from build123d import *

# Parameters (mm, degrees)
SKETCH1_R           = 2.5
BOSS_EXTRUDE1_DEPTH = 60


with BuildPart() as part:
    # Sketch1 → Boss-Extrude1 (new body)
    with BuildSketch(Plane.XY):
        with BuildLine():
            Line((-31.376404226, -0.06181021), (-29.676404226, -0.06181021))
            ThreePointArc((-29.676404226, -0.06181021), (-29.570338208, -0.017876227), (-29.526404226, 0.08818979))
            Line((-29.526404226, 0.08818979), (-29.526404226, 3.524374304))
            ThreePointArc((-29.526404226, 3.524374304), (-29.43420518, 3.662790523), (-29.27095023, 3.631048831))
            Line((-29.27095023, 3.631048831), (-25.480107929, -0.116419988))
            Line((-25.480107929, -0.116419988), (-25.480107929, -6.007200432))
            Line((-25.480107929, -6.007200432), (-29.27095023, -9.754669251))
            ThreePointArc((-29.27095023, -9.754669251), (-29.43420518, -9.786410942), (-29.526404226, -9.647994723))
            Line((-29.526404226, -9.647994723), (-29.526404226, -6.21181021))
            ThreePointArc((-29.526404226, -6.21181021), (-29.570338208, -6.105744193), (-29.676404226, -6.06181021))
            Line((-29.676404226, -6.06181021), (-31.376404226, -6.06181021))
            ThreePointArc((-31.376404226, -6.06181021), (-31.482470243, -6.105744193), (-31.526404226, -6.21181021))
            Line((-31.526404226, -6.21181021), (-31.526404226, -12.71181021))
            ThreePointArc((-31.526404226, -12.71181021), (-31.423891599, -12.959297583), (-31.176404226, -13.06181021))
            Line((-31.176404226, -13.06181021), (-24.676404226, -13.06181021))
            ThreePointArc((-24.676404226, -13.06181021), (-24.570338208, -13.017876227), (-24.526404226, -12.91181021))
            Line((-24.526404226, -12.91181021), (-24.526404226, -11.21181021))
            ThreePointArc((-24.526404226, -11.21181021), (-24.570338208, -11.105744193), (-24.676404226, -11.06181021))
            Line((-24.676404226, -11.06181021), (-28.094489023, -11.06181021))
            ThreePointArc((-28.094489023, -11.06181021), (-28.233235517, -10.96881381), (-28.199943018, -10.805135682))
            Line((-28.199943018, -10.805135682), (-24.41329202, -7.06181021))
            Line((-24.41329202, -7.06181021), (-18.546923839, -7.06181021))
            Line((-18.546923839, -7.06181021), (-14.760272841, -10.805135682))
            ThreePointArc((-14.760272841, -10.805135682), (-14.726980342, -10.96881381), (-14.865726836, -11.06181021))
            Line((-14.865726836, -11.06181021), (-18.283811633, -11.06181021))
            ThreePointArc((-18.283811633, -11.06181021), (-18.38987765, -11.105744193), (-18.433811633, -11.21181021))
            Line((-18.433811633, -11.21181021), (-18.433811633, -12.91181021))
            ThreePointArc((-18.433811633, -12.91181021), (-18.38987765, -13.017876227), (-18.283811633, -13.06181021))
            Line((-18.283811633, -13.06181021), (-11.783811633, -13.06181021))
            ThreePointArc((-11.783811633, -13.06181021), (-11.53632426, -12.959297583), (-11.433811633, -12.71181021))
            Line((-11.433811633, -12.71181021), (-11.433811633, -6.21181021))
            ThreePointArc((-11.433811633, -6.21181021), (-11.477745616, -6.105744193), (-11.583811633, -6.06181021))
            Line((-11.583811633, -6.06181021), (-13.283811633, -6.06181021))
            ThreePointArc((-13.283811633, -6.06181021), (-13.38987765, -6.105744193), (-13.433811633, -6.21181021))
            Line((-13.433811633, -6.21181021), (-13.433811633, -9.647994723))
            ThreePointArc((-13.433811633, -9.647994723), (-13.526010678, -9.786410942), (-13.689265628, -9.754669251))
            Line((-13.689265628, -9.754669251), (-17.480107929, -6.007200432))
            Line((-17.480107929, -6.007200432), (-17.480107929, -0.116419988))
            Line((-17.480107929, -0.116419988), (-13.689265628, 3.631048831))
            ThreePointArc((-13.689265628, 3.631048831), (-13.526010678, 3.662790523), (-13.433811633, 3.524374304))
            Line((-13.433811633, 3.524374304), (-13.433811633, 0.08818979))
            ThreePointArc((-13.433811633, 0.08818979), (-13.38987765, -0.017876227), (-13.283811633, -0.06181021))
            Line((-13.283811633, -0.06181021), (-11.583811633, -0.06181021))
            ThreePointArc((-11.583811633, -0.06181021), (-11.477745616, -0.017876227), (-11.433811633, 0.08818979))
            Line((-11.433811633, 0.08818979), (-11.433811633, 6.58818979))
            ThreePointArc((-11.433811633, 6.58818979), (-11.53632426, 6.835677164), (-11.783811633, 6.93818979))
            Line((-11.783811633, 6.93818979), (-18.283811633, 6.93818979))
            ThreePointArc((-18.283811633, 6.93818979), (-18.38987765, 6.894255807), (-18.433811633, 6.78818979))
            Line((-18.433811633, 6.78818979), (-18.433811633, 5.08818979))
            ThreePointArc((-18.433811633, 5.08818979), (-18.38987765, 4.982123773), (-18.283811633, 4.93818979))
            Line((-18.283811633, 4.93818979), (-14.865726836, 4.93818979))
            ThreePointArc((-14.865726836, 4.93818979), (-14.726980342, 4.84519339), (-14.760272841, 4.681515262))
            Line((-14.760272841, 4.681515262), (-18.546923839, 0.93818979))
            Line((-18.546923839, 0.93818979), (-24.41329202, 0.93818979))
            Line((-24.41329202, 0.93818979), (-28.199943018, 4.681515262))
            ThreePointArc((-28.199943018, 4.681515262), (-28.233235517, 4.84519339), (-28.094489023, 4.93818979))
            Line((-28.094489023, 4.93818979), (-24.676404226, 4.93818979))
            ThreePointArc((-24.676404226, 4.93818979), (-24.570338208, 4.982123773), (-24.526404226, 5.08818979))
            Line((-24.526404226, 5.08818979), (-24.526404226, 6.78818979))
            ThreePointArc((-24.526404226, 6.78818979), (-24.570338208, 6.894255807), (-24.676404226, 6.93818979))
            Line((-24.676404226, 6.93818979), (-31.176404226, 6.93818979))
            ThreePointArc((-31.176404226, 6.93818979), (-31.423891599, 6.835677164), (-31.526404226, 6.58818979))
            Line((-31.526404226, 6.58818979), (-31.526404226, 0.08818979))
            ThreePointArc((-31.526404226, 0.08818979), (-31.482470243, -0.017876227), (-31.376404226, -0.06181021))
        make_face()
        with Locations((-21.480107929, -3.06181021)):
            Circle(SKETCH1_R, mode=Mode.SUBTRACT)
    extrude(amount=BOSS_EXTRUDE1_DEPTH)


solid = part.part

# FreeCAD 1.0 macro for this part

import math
import FreeCAD as App
import Part
import Sketcher

V = App.Vector
Q = App.Units.Quantity

doc = App.newDocument("Part")
body = doc.addObject("PartDesign::Body", "Body")

sketch1 = body.newObject("Sketcher::SketchObject", "Sketch")
sketch1.AttachmentSupport = (doc.getObject("XY_Plane"), [""])
sketch1.MapMode = "FlatFace"
sketch1.addGeometry(Part.LineSegment(V(-31.38, -0.06, 0), V(-29.68, -0.06, 0)), False)
sketch1.addGeometry(Part.ArcOfCircle(Part.Circle(V(-29.68, 0.09, 0), V(0, 0, 1), 0.15), math.radians(-90), math.radians(0)), False)
sketch1.addGeometry(Part.LineSegment(V(-29.53, 0.09, 0), V(-29.53, 3.52, 0)), False)
sketch1.addGeometry(Part.ArcOfCircle(Part.Circle(V(-29.38, 3.52, 0), V(0, 0, 1), 0.15), math.radians(45), math.radians(180)), False)
sketch1.addGeometry(Part.LineSegment(V(-29.27, 3.63, 0), V(-25.48, -0.12, 0)), False)
sketch1.addGeometry(Part.LineSegment(V(-25.48, -0.12, 0), V(-25.48, -6.01, 0)), False)
sketch1.addGeometry(Part.LineSegment(V(-25.48, -6.01, 0), V(-29.27, -9.75, 0)), False)
sketch1.addGeometry(Part.ArcOfCircle(Part.Circle(V(-29.38, -9.65, 0), V(0, 0, 1), 0.15), math.radians(-180), math.radians(-45)), False)
sketch1.addGeometry(Part.LineSegment(V(-29.53, -9.65, 0), V(-29.53, -6.21, 0)), False)
sketch1.addGeometry(Part.ArcOfCircle(Part.Circle(V(-29.68, -6.21, 0), V(0, 0, 1), 0.15), math.radians(0), math.radians(90)), False)
sketch1.addGeometry(Part.LineSegment(V(-29.68, -6.06, 0), V(-31.38, -6.06, 0)), False)
sketch1.addGeometry(Part.ArcOfCircle(Part.Circle(V(-31.38, -6.21, 0), V(0, 0, 1), 0.15), math.radians(90), math.radians(180)), False)
sketch1.addGeometry(Part.LineSegment(V(-31.53, -6.21, 0), V(-31.53, -12.71, 0)), False)
sketch1.addGeometry(Part.ArcOfCircle(Part.Circle(V(-31.18, -12.71, 0), V(0, 0, 1), 0.35), math.radians(-180), math.radians(-90)), False)
sketch1.addGeometry(Part.LineSegment(V(-31.18, -13.06, 0), V(-24.68, -13.06, 0)), False)
sketch1.addGeometry(Part.ArcOfCircle(Part.Circle(V(-24.68, -12.91, 0), V(0, 0, 1), 0.15), math.radians(-90), math.radians(0)), False)
sketch1.addGeometry(Part.LineSegment(V(-24.53, -12.91, 0), V(-24.53, -11.21, 0)), False)
sketch1.addGeometry(Part.ArcOfCircle(Part.Circle(V(-24.68, -11.21, 0), V(0, 0, 1), 0.15), math.radians(0), math.radians(90)), False)
sketch1.addGeometry(Part.LineSegment(V(-24.68, -11.06, 0), V(-28.09, -11.06, 0)), False)
sketch1.addGeometry(Part.ArcOfCircle(Part.Circle(V(-28.09, -10.91, 0), V(0, 0, 1), 0.15), math.radians(135), math.radians(270)), False)
sketch1.addGeometry(Part.LineSegment(V(-28.2, -10.81, 0), V(-24.41, -7.06, 0)), False)
sketch1.addGeometry(Part.LineSegment(V(-24.41, -7.06, 0), V(-18.55, -7.06, 0)), False)
sketch1.addGeometry(Part.LineSegment(V(-18.55, -7.06, 0), V(-14.76, -10.81, 0)), False)
sketch1.addGeometry(Part.ArcOfCircle(Part.Circle(V(-14.87, -10.91, 0), V(0, 0, 1), 0.15), math.radians(-90), math.radians(45)), False)
sketch1.addGeometry(Part.LineSegment(V(-14.87, -11.06, 0), V(-18.28, -11.06, 0)), False)
sketch1.addGeometry(Part.ArcOfCircle(Part.Circle(V(-18.28, -11.21, 0), V(0, 0, 1), 0.15), math.radians(90), math.radians(180)), False)
sketch1.addGeometry(Part.LineSegment(V(-18.43, -11.21, 0), V(-18.43, -12.91, 0)), False)
sketch1.addGeometry(Part.ArcOfCircle(Part.Circle(V(-18.28, -12.91, 0), V(0, 0, 1), 0.15), math.radians(-180), math.radians(-90)), False)
sketch1.addGeometry(Part.LineSegment(V(-18.28, -13.06, 0), V(-11.78, -13.06, 0)), False)
sketch1.addGeometry(Part.ArcOfCircle(Part.Circle(V(-11.78, -12.71, 0), V(0, 0, 1), 0.35), math.radians(-90), math.radians(0)), False)
sketch1.addGeometry(Part.LineSegment(V(-11.43, -12.71, 0), V(-11.43, -6.21, 0)), False)
sketch1.addGeometry(Part.ArcOfCircle(Part.Circle(V(-11.58, -6.21, 0), V(0, 0, 1), 0.15), math.radians(0), math.radians(90)), False)
sketch1.addGeometry(Part.LineSegment(V(-11.58, -6.06, 0), V(-13.28, -6.06, 0)), False)
sketch1.addGeometry(Part.ArcOfCircle(Part.Circle(V(-13.28, -6.21, 0), V(0, 0, 1), 0.15), math.radians(90), math.radians(180)), False)
sketch1.addGeometry(Part.LineSegment(V(-13.43, -6.21, 0), V(-13.43, -9.65, 0)), False)
sketch1.addGeometry(Part.ArcOfCircle(Part.Circle(V(-13.58, -9.65, 0), V(0, 0, 1), 0.15), math.radians(-135), math.radians(0)), False)
sketch1.addGeometry(Part.LineSegment(V(-13.69, -9.75, 0), V(-17.48, -6.01, 0)), False)
sketch1.addGeometry(Part.LineSegment(V(-17.48, -6.01, 0), V(-17.48, -0.12, 0)), False)
sketch1.addGeometry(Part.LineSegment(V(-17.48, -0.12, 0), V(-13.69, 3.63, 0)), False)
sketch1.addGeometry(Part.ArcOfCircle(Part.Circle(V(-13.58, 3.52, 0), V(0, 0, 1), 0.15), math.radians(0), math.radians(135)), False)
sketch1.addGeometry(Part.LineSegment(V(-13.43, 3.52, 0), V(-13.43, 0.09, 0)), False)
sketch1.addGeometry(Part.ArcOfCircle(Part.Circle(V(-13.28, 0.09, 0), V(0, 0, 1), 0.15), math.radians(-180), math.radians(-90)), False)
sketch1.addGeometry(Part.LineSegment(V(-13.28, -0.06, 0), V(-11.58, -0.06, 0)), False)
sketch1.addGeometry(Part.ArcOfCircle(Part.Circle(V(-11.58, 0.09, 0), V(0, 0, 1), 0.15), math.radians(-90), math.radians(0)), False)
sketch1.addGeometry(Part.LineSegment(V(-11.43, 0.09, 0), V(-11.43, 6.59, 0)), False)
sketch1.addGeometry(Part.ArcOfCircle(Part.Circle(V(-11.78, 6.59, 0), V(0, 0, 1), 0.35), math.radians(0), math.radians(90)), False)
sketch1.addGeometry(Part.LineSegment(V(-11.78, 6.94, 0), V(-18.28, 6.94, 0)), False)
sketch1.addGeometry(Part.ArcOfCircle(Part.Circle(V(-18.28, 6.79, 0), V(0, 0, 1), 0.15), math.radians(90), math.radians(180)), False)
sketch1.addGeometry(Part.LineSegment(V(-18.43, 6.79, 0), V(-18.43, 5.09, 0)), False)
sketch1.addGeometry(Part.ArcOfCircle(Part.Circle(V(-18.28, 5.09, 0), V(0, 0, 1), 0.15), math.radians(-180), math.radians(-90)), False)
sketch1.addGeometry(Part.LineSegment(V(-18.28, 4.94, 0), V(-14.87, 4.94, 0)), False)
sketch1.addGeometry(Part.ArcOfCircle(Part.Circle(V(-14.87, 4.79, 0), V(0, 0, 1), 0.15), math.radians(-45), math.radians(90)), False)
sketch1.addGeometry(Part.LineSegment(V(-14.76, 4.68, 0), V(-18.55, 0.94, 0)), False)
sketch1.addGeometry(Part.LineSegment(V(-18.55, 0.94, 0), V(-24.41, 0.94, 0)), False)
sketch1.addGeometry(Part.LineSegment(V(-24.41, 0.94, 0), V(-28.2, 4.68, 0)), False)
sketch1.addGeometry(Part.ArcOfCircle(Part.Circle(V(-28.09, 4.79, 0), V(0, 0, 1), 0.15), math.radians(90), math.radians(225)), False)
sketch1.addGeometry(Part.LineSegment(V(-28.09, 4.94, 0), V(-24.68, 4.94, 0)), False)
sketch1.addGeometry(Part.ArcOfCircle(Part.Circle(V(-24.68, 5.09, 0), V(0, 0, 1), 0.15), math.radians(-90), math.radians(0)), False)
sketch1.addGeometry(Part.LineSegment(V(-24.53, 5.09, 0), V(-24.53, 6.79, 0)), False)
sketch1.addGeometry(Part.ArcOfCircle(Part.Circle(V(-24.68, 6.79, 0), V(0, 0, 1), 0.15), math.radians(0), math.radians(90)), False)
sketch1.addGeometry(Part.LineSegment(V(-24.68, 6.94, 0), V(-31.18, 6.94, 0)), False)
sketch1.addGeometry(Part.ArcOfCircle(Part.Circle(V(-31.18, 6.59, 0), V(0, 0, 1), 0.35), math.radians(90), math.radians(180)), False)
sketch1.addGeometry(Part.LineSegment(V(-31.53, 6.59, 0), V(-31.53, 0.09, 0)), False)
sketch1.addGeometry(Part.ArcOfCircle(Part.Circle(V(-31.38, 0.09, 0), V(0, 0, 1), 0.15), math.radians(-180), math.radians(-90)), False)
sketch1.addGeometry(Part.Circle(V(-21.48, -3.06, 0), V(0, 0, 1), 2.5), False)
sketch1.addConstraint(Sketcher.Constraint("Tangent", 0, 2, 1, 1))
sketch1.addConstraint(Sketcher.Constraint("Tangent", 1, 2, 2, 1))
sketch1.addConstraint(Sketcher.Constraint("Tangent", 2, 2, 3, 2))
sketch1.addConstraint(Sketcher.Constraint("Tangent", 3, 1, 4, 1))
sketch1.addConstraint(Sketcher.Constraint("Coincident", 4, 2, 5, 1))
sketch1.addConstraint(Sketcher.Constraint("Coincident", 5, 2, 6, 1))
sketch1.addConstraint(Sketcher.Constraint("Tangent", 6, 2, 7, 2))
sketch1.addConstraint(Sketcher.Constraint("Tangent", 7, 1, 8, 1))
sketch1.addConstraint(Sketcher.Constraint("Tangent", 8, 2, 9, 1))
sketch1.addConstraint(Sketcher.Constraint("Tangent", 9, 2, 10, 1))
sketch1.addConstraint(Sketcher.Constraint("Tangent", 10, 2, 11, 1))
sketch1.addConstraint(Sketcher.Constraint("Tangent", 11, 2, 12, 1))
sketch1.addConstraint(Sketcher.Constraint("Tangent", 12, 2, 13, 1))
sketch1.addConstraint(Sketcher.Constraint("Tangent", 13, 2, 14, 1))
sketch1.addConstraint(Sketcher.Constraint("Tangent", 14, 2, 15, 1))
sketch1.addConstraint(Sketcher.Constraint("Tangent", 15, 2, 16, 1))
sketch1.addConstraint(Sketcher.Constraint("Tangent", 16, 2, 17, 1))
sketch1.addConstraint(Sketcher.Constraint("Tangent", 17, 2, 18, 1))
sketch1.addConstraint(Sketcher.Constraint("Tangent", 18, 2, 19, 2))
sketch1.addConstraint(Sketcher.Constraint("Tangent", 19, 1, 20, 1))
sketch1.addConstraint(Sketcher.Constraint("Coincident", 20, 2, 21, 1))
sketch1.addConstraint(Sketcher.Constraint("Coincident", 21, 2, 22, 1))
sketch1.addConstraint(Sketcher.Constraint("Tangent", 22, 2, 23, 2))
sketch1.addConstraint(Sketcher.Constraint("Tangent", 23, 1, 24, 1))
sketch1.addConstraint(Sketcher.Constraint("Tangent", 24, 2, 25, 1))
sketch1.addConstraint(Sketcher.Constraint("Tangent", 25, 2, 26, 1))
sketch1.addConstraint(Sketcher.Constraint("Tangent", 26, 2, 27, 1))
sketch1.addConstraint(Sketcher.Constraint("Tangent", 27, 2, 28, 1))
sketch1.addConstraint(Sketcher.Constraint("Tangent", 28, 2, 29, 1))
sketch1.addConstraint(Sketcher.Constraint("Tangent", 29, 2, 30, 1))
sketch1.addConstraint(Sketcher.Constraint("Tangent", 30, 2, 31, 1))
sketch1.addConstraint(Sketcher.Constraint("Tangent", 31, 2, 32, 1))
sketch1.addConstraint(Sketcher.Constraint("Tangent", 32, 2, 33, 1))
sketch1.addConstraint(Sketcher.Constraint("Tangent", 33, 2, 34, 1))
sketch1.addConstraint(Sketcher.Constraint("Tangent", 34, 2, 35, 2))
sketch1.addConstraint(Sketcher.Constraint("Tangent", 35, 1, 36, 1))
sketch1.addConstraint(Sketcher.Constraint("Coincident", 36, 2, 37, 1))
sketch1.addConstraint(Sketcher.Constraint("Coincident", 37, 2, 38, 1))
sketch1.addConstraint(Sketcher.Constraint("Tangent", 38, 2, 39, 2))
sketch1.addConstraint(Sketcher.Constraint("Tangent", 39, 1, 40, 1))
sketch1.addConstraint(Sketcher.Constraint("Tangent", 40, 2, 41, 1))
sketch1.addConstraint(Sketcher.Constraint("Tangent", 41, 2, 42, 1))
sketch1.addConstraint(Sketcher.Constraint("Tangent", 42, 2, 43, 1))
sketch1.addConstraint(Sketcher.Constraint("Tangent", 43, 2, 44, 1))
sketch1.addConstraint(Sketcher.Constraint("Tangent", 44, 2, 45, 1))
sketch1.addConstraint(Sketcher.Constraint("Tangent", 45, 2, 46, 1))
sketch1.addConstraint(Sketcher.Constraint("Tangent", 46, 2, 47, 1))
sketch1.addConstraint(Sketcher.Constraint("Tangent", 47, 2, 48, 1))
sketch1.addConstraint(Sketcher.Constraint("Tangent", 48, 2, 49, 1))
sketch1.addConstraint(Sketcher.Constraint("Tangent", 49, 2, 50, 1))
sketch1.addConstraint(Sketcher.Constraint("Tangent", 50, 2, 51, 2))
sketch1.addConstraint(Sketcher.Constraint("Tangent", 51, 1, 52, 1))
sketch1.addConstraint(Sketcher.Constraint("Coincident", 52, 2, 53, 1))
sketch1.addConstraint(Sketcher.Constraint("Coincident", 53, 2, 54, 1))
sketch1.addConstraint(Sketcher.Constraint("Tangent", 54, 2, 55, 2))
sketch1.addConstraint(Sketcher.Constraint("Tangent", 55, 1, 56, 1))
sketch1.addConstraint(Sketcher.Constraint("Tangent", 56, 2, 57, 1))
sketch1.addConstraint(Sketcher.Constraint("Tangent", 57, 2, 58, 1))
sketch1.addConstraint(Sketcher.Constraint("Tangent", 58, 2, 59, 1))
sketch1.addConstraint(Sketcher.Constraint("Tangent", 59, 2, 60, 1))
sketch1.addConstraint(Sketcher.Constraint("Tangent", 60, 2, 61, 1))
sketch1.addConstraint(Sketcher.Constraint("Tangent", 61, 2, 62, 1))
sketch1.addConstraint(Sketcher.Constraint("Tangent", 62, 2, 63, 1))
sketch1.addConstraint(Sketcher.Constraint("Tangent", 63, 2, 0, 1))
sketch1.addConstraint(Sketcher.Constraint("Horizontal", 0))
sketch1.addConstraint(Sketcher.Constraint("Vertical", 2))
sketch1.addConstraint(Sketcher.Constraint("Vertical", 5))
sketch1.addConstraint(Sketcher.Constraint("Vertical", 8))
sketch1.addConstraint(Sketcher.Constraint("Horizontal", 10))
sketch1.addConstraint(Sketcher.Constraint("Vertical", 12))
sketch1.addConstraint(Sketcher.Constraint("Horizontal", 14))
sketch1.addConstraint(Sketcher.Constraint("Vertical", 16))
sketch1.addConstraint(Sketcher.Constraint("Horizontal", 18))
sketch1.addConstraint(Sketcher.Constraint("Horizontal", 21))
sketch1.addConstraint(Sketcher.Constraint("Horizontal", 24))
sketch1.addConstraint(Sketcher.Constraint("Vertical", 26))
sketch1.addConstraint(Sketcher.Constraint("Horizontal", 28))
sketch1.addConstraint(Sketcher.Constraint("Vertical", 30))
sketch1.addConstraint(Sketcher.Constraint("Horizontal", 32))
sketch1.addConstraint(Sketcher.Constraint("Vertical", 34))
sketch1.addConstraint(Sketcher.Constraint("Vertical", 37))
sketch1.addConstraint(Sketcher.Constraint("Vertical", 40))
sketch1.addConstraint(Sketcher.Constraint("Horizontal", 42))
sketch1.addConstraint(Sketcher.Constraint("Vertical", 44))
sketch1.addConstraint(Sketcher.Constraint("Horizontal", 46))
sketch1.addConstraint(Sketcher.Constraint("Vertical", 48))
sketch1.addConstraint(Sketcher.Constraint("Horizontal", 50))
sketch1.addConstraint(Sketcher.Constraint("Horizontal", 53))
sketch1.addConstraint(Sketcher.Constraint("Horizontal", 56))
sketch1.addConstraint(Sketcher.Constraint("Vertical", 58))
sketch1.addConstraint(Sketcher.Constraint("Horizontal", 60))
sketch1.addConstraint(Sketcher.Constraint("Vertical", 62))
sketch1.addConstraint(Sketcher.Constraint("Equal", 1, 3))
sketch1.addConstraint(Sketcher.Constraint("Equal", 3, 7))
sketch1.addConstraint(Sketcher.Constraint("Equal", 7, 9))
sketch1.addConstraint(Sketcher.Constraint("Equal", 9, 11))
sketch1.addConstraint(Sketcher.Constraint("Equal", 11, 15))
sketch1.addConstraint(Sketcher.Constraint("Equal", 15, 17))
sketch1.addConstraint(Sketcher.Constraint("Equal", 17, 19))
sketch1.addConstraint(Sketcher.Constraint("Equal", 19, 23))
sketch1.addConstraint(Sketcher.Constraint("Equal", 23, 25))
sketch1.addConstraint(Sketcher.Constraint("Equal", 25, 27))
sketch1.addConstraint(Sketcher.Constraint("Equal", 13, 29))
sketch1.addConstraint(Sketcher.Constraint("Equal", 27, 31))
sketch1.addConstraint(Sketcher.Constraint("Equal", 31, 33))
sketch1.addConstraint(Sketcher.Constraint("Equal", 33, 35))
sketch1.addConstraint(Sketcher.Constraint("Equal", 35, 39))
sketch1.addConstraint(Sketcher.Constraint("Equal", 39, 41))
sketch1.addConstraint(Sketcher.Constraint("Equal", 41, 43))
sketch1.addConstraint(Sketcher.Constraint("Equal", 29, 45))
sketch1.addConstraint(Sketcher.Constraint("Equal", 43, 47))
sketch1.addConstraint(Sketcher.Constraint("Equal", 47, 49))
sketch1.addConstraint(Sketcher.Constraint("Equal", 49, 51))
sketch1.addConstraint(Sketcher.Constraint("Equal", 51, 55))
sketch1.addConstraint(Sketcher.Constraint("Equal", 55, 57))
sketch1.addConstraint(Sketcher.Constraint("Equal", 57, 59))
sketch1.addConstraint(Sketcher.Constraint("Equal", 45, 61))
sketch1.addConstraint(Sketcher.Constraint("Equal", 59, 63))
sketch1.addConstraint(Sketcher.Constraint("Parallel", 6, 20))
sketch1.addConstraint(Sketcher.Constraint("Parallel", 4, 22))
sketch1.addConstraint(Sketcher.Constraint("Parallel", 22, 36))
sketch1.addConstraint(Sketcher.Constraint("Parallel", 20, 38))
sketch1.addConstraint(Sketcher.Constraint("Parallel", 38, 52))
sketch1.addConstraint(Sketcher.Constraint("Parallel", 36, 54))
sketch1.addConstraint(Sketcher.Constraint("Horizontal", 19, 3, 23, 3))
sketch1.addConstraint(Sketcher.Constraint("Horizontal", 15, 3, 27, 3))
sketch1.addConstraint(Sketcher.Constraint("Horizontal", 11, 3, 31, 3))
sketch1.addConstraint(Sketcher.Constraint("Horizontal", 7, 3, 35, 3))
sketch1.addConstraint(Sketcher.Constraint("Horizontal", 3, 3, 39, 3))
sketch1.addConstraint(Sketcher.Constraint("Horizontal", 1, 3, 41, 3))
sketch1.addConstraint(Sketcher.Constraint("Horizontal", 51, 3, 55, 3))
sketch1.addConstraint(Sketcher.Constraint("Horizontal", 47, 3, 59, 3))
sketch1.addConstraint(Sketcher.Constraint("Horizontal", 19, 1, 22, 2))
sketch1.addConstraint(Sketcher.Constraint("Horizontal", 5, 2, 36, 2))
sketch1.addConstraint(Sketcher.Constraint("Horizontal", 4, 2, 37, 2))
sketch1.addConstraint(Sketcher.Constraint("Vertical", 3, 3, 7, 3))
sketch1.addConstraint(Sketcher.Constraint("Vertical", 31, 3, 43, 3))
sketch1.addConstraint(Sketcher.Constraint("Vertical", 27, 3, 47, 3))
sketch1.addConstraint(Sketcher.Constraint("Vertical", 23, 3, 51, 3))
sketch1.addConstraint(Sketcher.Constraint("Vertical", 19, 3, 55, 3))
sketch1.addConstraint(Sketcher.Constraint("Vertical", 17, 3, 57, 3))
sketch1.addConstraint(Sketcher.Constraint("Vertical", 13, 3, 61, 3))
sketch1.addConstraint(Sketcher.Constraint("Vertical", 21, 2, 52, 2))
sketch1.addConstraint(Sketcher.Constraint("Equal", 18, 24))
sketch1.addConstraint(Sketcher.Constraint("Equal", 14, 28))
sketch1.addConstraint(Sketcher.Constraint("Equal", 10, 32))
sketch1.addConstraint(Sketcher.Constraint("Equal", 2, 8))
sketch1.addConstraint(Sketcher.Constraint("Equal", 60, 12))
sketch1.addConstraint(Sketcher.Constraint("Equal", 42, 16))
sketch1.addConstraint(Sketcher.Constraint("Equal", 30, 44))
sketch1.addConstraint(Sketcher.Constraint("Equal", 26, 48))
sketch1.addConstraint(Sketcher.Constraint("Diameter", 64, Q("5 mm")))
sketch1.addConstraint(Sketcher.Constraint("Radius", 1, Q("0.15 mm")))
sketch1.addConstraint(Sketcher.Constraint("Radius", 13, Q("0.35 mm")))
sketch1.addConstraint(Sketcher.Constraint("DistanceX", 0, 1, 0, 2, Q("1.7 mm")))
sketch1.addConstraint(Sketcher.Constraint("DistanceX", 14, 1, 14, 2, Q("6.5 mm")))
sketch1.addConstraint(Sketcher.Constraint("DistanceX", 21, 1, 21, 2, Q("5.866368 mm")))
sketch1.addConstraint(Sketcher.Constraint("DistanceY", 5, 2, 5, 1, Q("5.89078 mm")))
sketch1.addConstraint(Sketcher.Constraint("DistanceY", 5, 2, -1, 1, Q("6.0072 mm")))
sketch1.addConstraint(Sketcher.Constraint("Distance", 4, Q("5.330479 mm")))
sketch1.addConstraint(Sketcher.Constraint("DistanceX", 18, 2, 18, 1, Q("3.418085 mm")))
sketch1.addConstraint(Sketcher.Constraint("DistanceY", 2, 1, 2, 2, Q("3.436185 mm")))
sketch1.addConstraint(Sketcher.Constraint("DistanceY", -1, 1, 1, 3, Q("0.08819 mm")))
sketch1.addConstraint(Sketcher.Constraint("DistanceX", 19, 3, -1, 1, Q("28.094489 mm")))
sketch1.addConstraint(Sketcher.Constraint("DistanceX", 25, 3, -1, 1, Q("18.283812 mm")))
sketch1.addConstraint(Sketcher.Constraint("DistanceY", 64, 3, -1, 1, Q("3.06181 mm")))
sketch1.addConstraint(Sketcher.Constraint("DistanceX", 64, 3, -1, 1, Q("21.480108 mm")))
pad1 = body.newObject("PartDesign::Pad", "Pad")
pad1.Profile = sketch1
pad1.Length = 60

doc.recompute()
